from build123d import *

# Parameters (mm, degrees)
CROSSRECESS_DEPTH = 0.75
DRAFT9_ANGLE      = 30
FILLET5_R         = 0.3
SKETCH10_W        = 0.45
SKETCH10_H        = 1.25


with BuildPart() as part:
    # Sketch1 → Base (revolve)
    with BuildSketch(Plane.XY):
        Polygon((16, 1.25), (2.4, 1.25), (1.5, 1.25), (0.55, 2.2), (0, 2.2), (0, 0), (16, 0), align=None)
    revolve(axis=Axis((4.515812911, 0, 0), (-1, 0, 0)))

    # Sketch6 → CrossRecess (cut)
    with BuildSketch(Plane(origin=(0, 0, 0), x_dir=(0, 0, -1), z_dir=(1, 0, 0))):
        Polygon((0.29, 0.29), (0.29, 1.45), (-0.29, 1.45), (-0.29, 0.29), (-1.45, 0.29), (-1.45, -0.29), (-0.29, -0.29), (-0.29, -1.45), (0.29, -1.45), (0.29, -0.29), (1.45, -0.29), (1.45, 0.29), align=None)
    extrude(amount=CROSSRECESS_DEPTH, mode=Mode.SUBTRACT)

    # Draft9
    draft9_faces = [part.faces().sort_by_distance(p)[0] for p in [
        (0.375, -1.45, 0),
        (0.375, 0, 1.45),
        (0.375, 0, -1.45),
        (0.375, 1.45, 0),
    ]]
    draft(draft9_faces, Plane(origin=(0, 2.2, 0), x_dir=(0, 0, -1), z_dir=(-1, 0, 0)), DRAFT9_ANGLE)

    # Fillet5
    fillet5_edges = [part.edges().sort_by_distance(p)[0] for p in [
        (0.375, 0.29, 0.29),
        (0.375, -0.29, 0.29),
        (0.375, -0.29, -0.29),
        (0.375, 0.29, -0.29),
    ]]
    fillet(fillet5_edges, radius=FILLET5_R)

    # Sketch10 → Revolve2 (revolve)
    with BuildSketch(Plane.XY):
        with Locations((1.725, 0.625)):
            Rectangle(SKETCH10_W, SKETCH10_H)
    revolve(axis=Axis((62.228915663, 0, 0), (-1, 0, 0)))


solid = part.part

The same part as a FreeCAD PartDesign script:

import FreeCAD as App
import Part
import Sketcher
from FreeCAD import Vector
Q = App.Units.Quantity


def edges_at(feature, points):
    """Names of the edges that pass closest to the given points."""
    edges = feature.Shape.Edges
    near = lambda p: min(range(len(edges)), key=lambda i: edges[i].distToShape(Part.Vertex(*p))[0])
    return sorted({f"Edge{near(p) + 1}" for p in points})


def faces_at(feature, points):
    """Names of the faces that lie closest to the given points."""
    faces = feature.Shape.Faces
    near = lambda p: min(range(len(faces)), key=lambda i: faces[i].distToShape(Part.Vertex(*p))[0])
    return sorted({f"Face{near(p) + 1}" for p in points})

doc = App.newDocument("Part")
params = doc.addObject("Spreadsheet::Sheet", "Params")
for row, (alias, value) in enumerate([
    ("sketch1_width", "16 mm"),
    ("sketch1_width2", "14.5 mm"),
    ("sketch1_height", "2.2 mm"),
    ("sketch1_width3", "0.55 mm"),
    ("revolution_angle", "360 deg"),
    ("sketch2_width", "1.16 mm"),
    ("sketch2_width2", "0.58 mm"),
    ("pocket1_length", "0.75 mm"),
    ("draft_angle", "30 deg"),
    ("fillet_radius", "0.3 mm"),
    ("sketch3_width", "0.45 mm"),
    ("sketch3_height", "1.25 mm"),
    ("revolution2_angle", "360 deg"),
], start=1):
    params.set(f"A{row}", alias)
    params.set(f"B{row}", "=" + value)
    params.setAlias(f"B{row}", alias)

body = doc.addObject("PartDesign::Body", "Body")

sketch1 = doc.addObject("Sketcher::SketchObject", "Sketch")
body.addObject(sketch1)
sketch1.AttachmentSupport = (doc.XY_Plane, [""])
sketch1.MapMode = "FlatFace"
sketch1.addGeometry([
    Part.LineSegment(Vector(16, 1.2, 0), Vector(1.5, 1.2, 0)),
    Part.LineSegment(Vector(1.5, 1.2, 0), Vector(0.6, 2.2, 0)),
    Part.LineSegment(Vector(0.6, 2.2, 0), Vector(0, 2.2, 0)),
    Part.LineSegment(Vector(0, 2.2, 0), Vector(0, 0, 0)),
    Part.LineSegment(Vector(0, 0, 0), Vector(16, 0, 0)),
    Part.LineSegment(Vector(16, 0, 0), Vector(16, 1.2, 0)),
], False)
sketch1.addConstraint([
    Sketcher.Constraint("Coincident", 0, 2, 1, 1),
    Sketcher.Constraint("Coincident", 1, 2, 2, 1),
    Sketcher.Constraint("Coincident", 2, 2, 3, 1),
    Sketcher.Constraint("Coincident", 3, 2, 4, 1),
    Sketcher.Constraint("Coincident", 4, 2, 5, 1),
    Sketcher.Constraint("Coincident", 5, 2, 0, 1),
    Sketcher.Constraint("Horizontal", 0),
    Sketcher.Constraint("Horizontal", 2),
    Sketcher.Constraint("Vertical", 3),
    Sketcher.Constraint("Horizontal", 4),
    Sketcher.Constraint("Vertical", 5),
    Sketcher.Constraint("Coincident", 3, 2, -1, 1),
    Sketcher.Constraint("DistanceX", 4, 1, 4, 2, 16.0),
    Sketcher.Constraint("Angle", 1, Q("135 deg")),
    Sketcher.Constraint("DistanceX", 0, 2, 0, 1, 14.5),
    Sketcher.Constraint("DistanceY", 3, 2, 3, 1, 2.2),
    Sketcher.Constraint("DistanceX", 2, 2, 2, 1, 0.55),
])
sketch1.setExpression("Constraints[12]", "Params.sketch1_width")
sketch1.setExpression("Constraints[14]", "Params.sketch1_width2")
sketch1.setExpression("Constraints[15]", "Params.sketch1_height")
sketch1.setExpression("Constraints[16]", "Params.sketch1_width3")
revolution = doc.addObject("PartDesign::Revolution", "Revolution")
body.addObject(revolution)
revolution.Profile = sketch1
revolution.ReferenceAxis = (sketch1, ["H_Axis"])
revolution.setExpression("Angle", "Params.revolution_angle")

sketch2 = doc.addObject("Sketcher::SketchObject", "Sketch001")
body.addObject(sketch2)
sketch2.AttachmentSupport = (doc.YZ_Plane, [""])
sketch2.MapMode = "FlatFace"
sketch2.addGeometry([
    Part.LineSegment(Vector(0.3, -0.3, 0), Vector(1.4, -0.3, 0)),
    Part.LineSegment(Vector(1.4, -0.3, 0), Vector(1.4, 0.3, 0)),
    Part.LineSegment(Vector(1.4, 0.3, 0), Vector(0.3, 0.3, 0)),
    Part.LineSegment(Vector(0.3, 0.3, 0), Vector(0.3, 1.4, 0)),
    Part.LineSegment(Vector(0.3, 1.4, 0), Vector(-0.3, 1.4, 0)),
    Part.LineSegment(Vector(-0.3, 1.4, 0), Vector(-0.3, 0.3, 0)),
    Part.LineSegment(Vector(-0.3, 0.3, 0), Vector(-1.4, 0.3, 0)),
    Part.LineSegment(Vector(-1.4, 0.3, 0), Vector(-1.4, -0.3, 0)),
    Part.LineSegment(Vector(-1.4, -0.3, 0), Vector(-0.3, -0.3, 0)),
    Part.LineSegment(Vector(-0.3, -0.3, 0), Vector(-0.3, -1.4, 0)),
    Part.LineSegment(Vector(-0.3, -1.4, 0), Vector(0.3, -1.4, 0)),
    Part.LineSegment(Vector(0.3, -1.4, 0), Vector(0.3, -0.3, 0)),
], False)
sketch2.addConstraint([
    Sketcher.Constraint("Coincident", 0, 2, 1, 1),
    Sketcher.Constraint("Coincident", 1, 2, 2, 1),
    Sketcher.Constraint("Coincident", 2, 2, 3, 1),
    Sketcher.Constraint("Coincident", 3, 2, 4, 1),
    Sketcher.Constraint("Coincident", 4, 2, 5, 1),
    Sketcher.Constraint("Coincident", 5, 2, 6, 1),
    Sketcher.Constraint("Coincident", 6, 2, 7, 1),
    Sketcher.Constraint("Coincident", 7, 2, 8, 1),
    Sketcher.Constraint("Coincident", 8, 2, 9, 1),
    Sketcher.Constraint("Coincident", 9, 2, 10, 1),
    Sketcher.Constraint("Coincident", 10, 2, 11, 1),
    Sketcher.Constraint("Coincident", 11, 2, 0, 1),
    Sketcher.Constraint("Horizontal", 0),
    Sketcher.Constraint("Vertical", 1),
    Sketcher.Constraint("Horizontal", 2),
    Sketcher.Constraint("Vertical", 3),
    Sketcher.Constraint("Horizontal", 4),
    Sketcher.Constraint("Vertical", 5),
    Sketcher.Constraint("Horizontal", 6),
    Sketcher.Constraint("Vertical", 7),
    Sketcher.Constraint("Horizontal", 8),
    Sketcher.Constraint("Vertical", 9),
    Sketcher.Constraint("Horizontal", 10),
    Sketcher.Constraint("Vertical", 11),
    Sketcher.Constraint("Symmetric", 0, 2, 6, 2, -1, 1),
    Sketcher.Constraint("Symmetric", 2, 2, 8, 2, -1, 1),
    Sketcher.Constraint("Symmetric", 4, 2, 10, 2, -1, 1),
    Sketcher.Constraint("Symmetric", 2, 2, 5, 2, -2),
    Sketcher.Constraint("Equal", 10, 1),
    Sketcher.Constraint("Equal", 8, 3),
    Sketcher.Constraint("DistanceX", 0, 1, 0, 2, 1.16),
    Sketcher.Constraint("DistanceX", 4, 2, 4, 1, 0.58),
])
sketch2.setExpression("Constraints[30]", "Params.sketch2_width")
sketch2.setExpression("Constraints[31]", "Params.sketch2_width2")
pocket1 = doc.addObject("PartDesign::Pocket", "Pocket")
body.addObject(pocket1)
pocket1.Profile = sketch2
pocket1.setExpression("Length", "Params.pocket1_length")
pocket1.Reversed = True
doc.recompute()

draft = doc.addObject("PartDesign::Draft", "Draft")
body.addObject(draft)
draft.Base = (pocket1, faces_at(pocket1, [
    (0.375, -1.45, 0),
    (0.375, 0, 1.45),
    (0.375, 0, -1.45),
    (0.375, 1.45, 0),
]))
draft.NeutralPlane = (doc.YZ_Plane, [""])
draft.setExpression("Angle", "Params.draft_angle")
draft.Reversed = True
doc.recompute()

fillet = doc.addObject("PartDesign::Fillet", "Fillet")
body.addObject(fillet)
fillet.Base = (draft, edges_at(draft, [
    (0.375, 0.29, 0.29),
    (0.375, -0.29, 0.29),
    (0.375, -0.29, -0.29),
    (0.375, 0.29, -0.29),
]))
fillet.setExpression("Radius", "Params.fillet_radius")

sketch3 = doc.addObject("Sketcher::SketchObject", "Sketch002")
body.addObject(sketch3)
sketch3.AttachmentSupport = (doc.XY_Plane, [""])
sketch3.MapMode = "FlatFace"
sketch3.addGeometry([
    Part.LineSegment(Vector(1.5, 1.25, 0), Vector(1.5, 0, 0)),
    Part.LineSegment(Vector(1.5, 0, 0), Vector(1.95, 0, 0)),
    Part.LineSegment(Vector(1.95, 0, 0), Vector(1.95, 1.25, 0)),
    Part.LineSegment(Vector(1.95, 1.25, 0), Vector(1.5, 1.25, 0)),
], False)
sketch3.addConstraint([
    Sketcher.Constraint("Coincident", 0, 2, 1, 1),
    Sketcher.Constraint("Coincident", 1, 2, 2, 1),
    Sketcher.Constraint("Coincident", 2, 2, 3, 1),
    Sketcher.Constraint("Coincident", 3, 2, 0, 1),
    Sketcher.Constraint("Vertical", 0),
    Sketcher.Constraint("Horizontal", 1),
    Sketcher.Constraint("Vertical", 2),
    Sketcher.Constraint("Horizontal", 3),
    Sketcher.Constraint("PointOnObject", 0, 2, -1),
    Sketcher.Constraint("DistanceX", 1, 1, 1, 2, 0.45),
    Sketcher.Constraint("DistanceY", 0, 2, 0, 1, 1.25),
    Sketcher.Constraint("DistanceX", -1, 1, 0, 2, 1.5),
])
sketch3.setExpression("Constraints[9]", "Params.sketch3_width")
sketch3.setExpression("Constraints[10]", "Params.sketch3_height")
revolution2 = doc.addObject("PartDesign::Revolution", "Revolution001")
body.addObject(revolution2)
revolution2.Profile = sketch3
revolution2.ReferenceAxis = (sketch3, ["H_Axis"])
revolution2.setExpression("Angle", "Params.revolution2_angle")

doc.recompute()
